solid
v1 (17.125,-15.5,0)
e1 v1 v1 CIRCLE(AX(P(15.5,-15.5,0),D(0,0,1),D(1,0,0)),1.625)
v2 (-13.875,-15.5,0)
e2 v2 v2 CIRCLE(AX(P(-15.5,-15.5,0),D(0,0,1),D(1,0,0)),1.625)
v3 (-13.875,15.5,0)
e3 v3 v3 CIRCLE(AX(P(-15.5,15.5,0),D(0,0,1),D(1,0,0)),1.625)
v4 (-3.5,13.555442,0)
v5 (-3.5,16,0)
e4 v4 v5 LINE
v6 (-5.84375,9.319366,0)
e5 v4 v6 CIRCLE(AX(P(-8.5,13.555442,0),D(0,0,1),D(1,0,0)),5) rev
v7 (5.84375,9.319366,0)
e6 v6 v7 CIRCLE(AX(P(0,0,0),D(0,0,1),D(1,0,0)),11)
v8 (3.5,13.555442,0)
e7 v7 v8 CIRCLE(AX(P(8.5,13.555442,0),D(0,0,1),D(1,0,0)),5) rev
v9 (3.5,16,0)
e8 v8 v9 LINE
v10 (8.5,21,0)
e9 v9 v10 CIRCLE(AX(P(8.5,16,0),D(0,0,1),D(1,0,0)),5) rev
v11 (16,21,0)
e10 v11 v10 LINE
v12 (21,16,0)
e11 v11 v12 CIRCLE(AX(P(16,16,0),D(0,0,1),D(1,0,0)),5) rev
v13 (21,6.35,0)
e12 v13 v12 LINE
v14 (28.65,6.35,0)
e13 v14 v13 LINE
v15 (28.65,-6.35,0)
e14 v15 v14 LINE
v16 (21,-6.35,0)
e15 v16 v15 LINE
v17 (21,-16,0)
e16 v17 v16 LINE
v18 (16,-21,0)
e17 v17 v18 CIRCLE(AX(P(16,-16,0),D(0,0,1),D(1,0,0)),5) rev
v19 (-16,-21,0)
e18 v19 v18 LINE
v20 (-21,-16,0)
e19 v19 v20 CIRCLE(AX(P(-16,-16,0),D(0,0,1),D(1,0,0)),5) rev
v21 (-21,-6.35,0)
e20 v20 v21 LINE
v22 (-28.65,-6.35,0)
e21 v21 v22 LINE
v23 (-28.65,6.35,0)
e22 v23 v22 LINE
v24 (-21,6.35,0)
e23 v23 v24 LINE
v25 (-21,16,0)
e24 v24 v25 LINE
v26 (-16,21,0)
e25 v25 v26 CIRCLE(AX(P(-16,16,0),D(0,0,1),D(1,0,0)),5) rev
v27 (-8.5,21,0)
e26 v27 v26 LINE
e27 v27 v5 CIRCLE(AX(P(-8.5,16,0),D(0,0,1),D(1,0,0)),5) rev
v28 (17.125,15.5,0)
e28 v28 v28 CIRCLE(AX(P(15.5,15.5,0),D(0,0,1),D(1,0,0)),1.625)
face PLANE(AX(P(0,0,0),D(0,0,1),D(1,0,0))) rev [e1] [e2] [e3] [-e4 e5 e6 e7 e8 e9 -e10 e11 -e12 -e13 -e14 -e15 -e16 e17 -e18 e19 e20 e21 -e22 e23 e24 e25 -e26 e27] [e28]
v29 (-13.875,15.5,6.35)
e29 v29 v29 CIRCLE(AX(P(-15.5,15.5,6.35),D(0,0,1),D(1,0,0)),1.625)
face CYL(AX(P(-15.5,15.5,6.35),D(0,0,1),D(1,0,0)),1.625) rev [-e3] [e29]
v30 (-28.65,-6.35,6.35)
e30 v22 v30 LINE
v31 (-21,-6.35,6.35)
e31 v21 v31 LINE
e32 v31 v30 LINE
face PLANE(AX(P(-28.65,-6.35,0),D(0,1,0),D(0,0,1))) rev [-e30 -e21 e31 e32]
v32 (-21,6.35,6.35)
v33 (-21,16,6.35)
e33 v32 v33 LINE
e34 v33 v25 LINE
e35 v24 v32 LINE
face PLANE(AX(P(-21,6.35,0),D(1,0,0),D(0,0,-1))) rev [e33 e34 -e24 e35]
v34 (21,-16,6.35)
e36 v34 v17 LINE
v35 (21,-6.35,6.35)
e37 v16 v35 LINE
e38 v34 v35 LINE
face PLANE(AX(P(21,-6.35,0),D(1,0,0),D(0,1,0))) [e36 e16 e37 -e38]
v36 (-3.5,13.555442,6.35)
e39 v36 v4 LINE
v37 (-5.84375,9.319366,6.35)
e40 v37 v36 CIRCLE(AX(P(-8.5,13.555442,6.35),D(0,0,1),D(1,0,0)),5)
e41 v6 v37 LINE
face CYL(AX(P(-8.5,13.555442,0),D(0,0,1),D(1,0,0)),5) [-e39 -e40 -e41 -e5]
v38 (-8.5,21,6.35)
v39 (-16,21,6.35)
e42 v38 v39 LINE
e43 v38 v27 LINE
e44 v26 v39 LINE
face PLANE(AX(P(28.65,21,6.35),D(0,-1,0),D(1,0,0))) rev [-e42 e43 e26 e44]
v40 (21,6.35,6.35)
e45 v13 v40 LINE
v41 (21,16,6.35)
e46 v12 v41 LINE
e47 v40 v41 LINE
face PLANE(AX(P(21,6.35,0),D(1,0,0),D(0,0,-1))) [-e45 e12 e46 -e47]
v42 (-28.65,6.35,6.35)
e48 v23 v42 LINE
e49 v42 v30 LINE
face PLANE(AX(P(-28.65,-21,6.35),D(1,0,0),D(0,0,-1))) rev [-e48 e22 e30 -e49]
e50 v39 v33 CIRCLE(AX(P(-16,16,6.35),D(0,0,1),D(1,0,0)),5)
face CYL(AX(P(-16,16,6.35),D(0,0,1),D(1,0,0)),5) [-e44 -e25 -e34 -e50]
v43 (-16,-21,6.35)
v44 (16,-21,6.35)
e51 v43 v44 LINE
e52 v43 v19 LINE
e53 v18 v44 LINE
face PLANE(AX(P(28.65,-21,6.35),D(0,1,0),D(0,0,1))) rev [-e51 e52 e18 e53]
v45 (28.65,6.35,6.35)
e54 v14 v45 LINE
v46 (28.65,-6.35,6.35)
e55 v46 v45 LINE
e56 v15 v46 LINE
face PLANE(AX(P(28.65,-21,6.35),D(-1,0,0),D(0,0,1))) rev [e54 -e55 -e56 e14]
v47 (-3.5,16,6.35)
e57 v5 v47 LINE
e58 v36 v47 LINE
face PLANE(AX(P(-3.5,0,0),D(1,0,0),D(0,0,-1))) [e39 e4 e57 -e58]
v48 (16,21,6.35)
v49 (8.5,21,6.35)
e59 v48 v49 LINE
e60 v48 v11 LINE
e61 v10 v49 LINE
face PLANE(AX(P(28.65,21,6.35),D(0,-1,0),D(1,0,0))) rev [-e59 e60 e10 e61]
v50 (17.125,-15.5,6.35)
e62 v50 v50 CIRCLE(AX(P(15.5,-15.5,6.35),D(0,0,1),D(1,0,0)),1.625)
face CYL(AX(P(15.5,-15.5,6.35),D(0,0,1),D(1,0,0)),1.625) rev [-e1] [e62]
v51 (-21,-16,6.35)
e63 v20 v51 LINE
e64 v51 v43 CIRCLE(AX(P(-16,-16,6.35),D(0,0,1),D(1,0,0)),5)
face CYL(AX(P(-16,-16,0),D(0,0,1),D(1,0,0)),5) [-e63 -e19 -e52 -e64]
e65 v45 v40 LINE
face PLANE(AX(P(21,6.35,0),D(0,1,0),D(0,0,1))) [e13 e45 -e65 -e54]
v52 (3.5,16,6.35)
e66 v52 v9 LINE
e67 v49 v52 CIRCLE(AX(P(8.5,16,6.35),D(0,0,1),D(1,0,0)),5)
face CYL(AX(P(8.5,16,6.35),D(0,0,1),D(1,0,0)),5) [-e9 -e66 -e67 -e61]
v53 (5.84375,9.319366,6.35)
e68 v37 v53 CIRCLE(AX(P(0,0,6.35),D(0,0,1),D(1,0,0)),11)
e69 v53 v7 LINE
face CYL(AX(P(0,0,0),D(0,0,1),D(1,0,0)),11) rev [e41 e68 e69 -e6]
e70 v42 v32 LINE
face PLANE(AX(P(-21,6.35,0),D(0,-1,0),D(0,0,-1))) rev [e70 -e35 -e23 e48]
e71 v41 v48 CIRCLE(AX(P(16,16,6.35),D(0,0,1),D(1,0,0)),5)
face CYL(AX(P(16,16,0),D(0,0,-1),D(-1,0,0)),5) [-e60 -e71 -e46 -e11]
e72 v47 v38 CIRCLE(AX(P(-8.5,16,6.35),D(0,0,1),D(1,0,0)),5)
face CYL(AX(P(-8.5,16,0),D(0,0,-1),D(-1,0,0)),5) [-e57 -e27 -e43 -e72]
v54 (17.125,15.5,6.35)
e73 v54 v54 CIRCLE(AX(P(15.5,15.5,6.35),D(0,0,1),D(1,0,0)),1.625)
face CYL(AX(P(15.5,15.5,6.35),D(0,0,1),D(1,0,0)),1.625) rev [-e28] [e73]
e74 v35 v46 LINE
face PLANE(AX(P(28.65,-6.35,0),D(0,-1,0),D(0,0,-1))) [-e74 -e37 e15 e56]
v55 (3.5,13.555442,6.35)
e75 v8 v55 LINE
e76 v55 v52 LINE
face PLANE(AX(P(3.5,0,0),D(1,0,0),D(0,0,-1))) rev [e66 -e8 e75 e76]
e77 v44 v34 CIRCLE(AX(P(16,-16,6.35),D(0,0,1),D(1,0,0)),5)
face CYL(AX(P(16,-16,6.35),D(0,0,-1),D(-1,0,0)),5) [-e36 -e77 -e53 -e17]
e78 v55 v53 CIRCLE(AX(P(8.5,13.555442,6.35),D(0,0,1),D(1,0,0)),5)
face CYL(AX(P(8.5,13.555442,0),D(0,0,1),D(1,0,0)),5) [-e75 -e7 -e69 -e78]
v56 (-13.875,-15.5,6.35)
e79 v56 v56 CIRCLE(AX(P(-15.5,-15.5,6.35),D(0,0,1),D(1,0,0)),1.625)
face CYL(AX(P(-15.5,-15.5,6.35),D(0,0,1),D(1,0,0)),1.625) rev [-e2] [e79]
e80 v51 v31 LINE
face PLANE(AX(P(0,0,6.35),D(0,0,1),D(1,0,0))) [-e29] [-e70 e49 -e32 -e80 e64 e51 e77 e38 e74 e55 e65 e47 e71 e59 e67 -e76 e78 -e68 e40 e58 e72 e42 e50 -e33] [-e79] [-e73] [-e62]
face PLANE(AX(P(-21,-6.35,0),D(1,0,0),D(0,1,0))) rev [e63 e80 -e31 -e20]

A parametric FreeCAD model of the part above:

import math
import FreeCAD as App
import Part
import Sketcher
from FreeCAD import Vector
Q = App.Units.Quantity


def edges_at(feature, points):
    """Names of the edges that pass closest to the given points."""
    edges = feature.Shape.Edges
    near = lambda p: min(range(len(edges)), key=lambda i: edges[i].distToShape(Part.Vertex(*p))[0])
    return sorted({f"Edge{near(p) + 1}" for p in points})


def add_polygon(sketch, points):
    """Adds a closed chain of lines whose ends are joined by coincident constraints."""
    first, n = sketch.GeometryCount, len(points)
    for a, b in zip(points, points[1:] + points[:1]):
        sketch.addGeometry(Part.LineSegment(App.Vector(*a, 0), App.Vector(*b, 0)), False)
    for i in range(n):
        sketch.addConstraint(Sketcher.Constraint("Coincident", first + i, 2, first + (i + 1) % n, 1))

doc = App.newDocument("Part")
body = doc.addObject("PartDesign::Body", "Body")

sketch1 = body.newObject("Sketcher::SketchObject", "Sketch")
sketch1.AttachmentSupport = (doc.getObject("XY_Plane"), [""])
sketch1.MapMode = "FlatFace"
add_polygon(sketch1, [(-28.65, 21), (-28.65, -21), (28.65, -21), (28.65, 21)])
sketch1.addConstraint([
    Sketcher.Constraint("Vertical", 0),
    Sketcher.Constraint("Horizontal", 1),
    Sketcher.Constraint("Vertical", 2),
    Sketcher.Constraint("Horizontal", 3),
    Sketcher.Constraint("Symmetric", 0, 2, 2, 2, -1, 1),
    Sketcher.Constraint("DistanceY", 0, 2, 0, 1, Q("42 mm")),
    Sketcher.Constraint("DistanceX", 1, 1, 1, 2, Q("57.3 mm")),
])
pad1 = body.newObject("PartDesign::Pad", "Pad")
pad1.Profile = sketch1
pad1.Length = 6.35

sketch2 = body.newObject("Sketcher::SketchObject", "Sketch001")
sketch2.AttachmentSupport = (doc.getObject("XY_Plane"), [""])
sketch2.MapMode = "FlatFace"
sketch2.AttachmentOffset = App.Placement(Vector(0, 0, 6.35), App.Rotation())
sketch2.addGeometry([
    Part.Circle(Vector(15.5, 15.5, 0), Vector(0, 0, 1), 1.625),
    Part.Circle(Vector(15.5, -15.5, 0), Vector(0, 0, 1), 1.625),
    Part.Circle(Vector(-15.5, 15.5, 0), Vector(0, 0, 1), 1.625),
    Part.Circle(Vector(-15.5, -15.5, 0), Vector(0, 0, 1), 1.625),
], False)
sketch2.addConstraint([
    Sketcher.Constraint("Equal", 0, 1),
    Sketcher.Constraint("Equal", 1, 2),
    Sketcher.Constraint("Equal", 2, 3),
    Sketcher.Constraint("Symmetric", 1, 3, 2, 3, -1, 1),
    Sketcher.Constraint("Symmetric", 0, 3, 3, 3, -1, 1),
    Sketcher.Constraint("Symmetric", 0, 3, 2, 3, -2),
    Sketcher.Constraint("Diameter", 0, Q("3.25 mm")),
    Sketcher.Constraint("DistanceY", 1, 3, 0, 3, Q("31 mm")),
    Sketcher.Constraint("DistanceX", 2, 3, 0, 3, Q("31 mm")),
])
doc.recompute()
hole = body.newObject("PartDesign::Hole", "Hole")
hole.Profile = sketch2
hole.ThreadType = "None"
hole.Diameter = 3.25
hole.DepthType = "ThroughAll"

sketch3 = body.newObject("Sketcher::SketchObject", "Sketch002")
sketch3.AttachmentSupport = (doc.getObject("XY_Plane"), [""])
sketch3.MapMode = "FlatFace"
sketch3.AttachmentOffset = App.Placement(Vector(0, 0, 6.35), App.Rotation())
sketch3.addGeometry([
    Part.ArcOfCircle(Part.Circle(Vector(0, 0, 0), Vector(0, 0, 1), 11), math.radians(0), math.radians(71.446995)),
    Part.LineSegment(Vector(3.5, 10.428327, 0), Vector(3.5, 21, 0)),
    Part.LineSegment(Vector(3.5, 21, 0), Vector(-3.5, 21, 0)),
    Part.LineSegment(Vector(-3.5, 21, 0), Vector(-3.5, 10.428327, 0)),
    Part.ArcOfCircle(Part.Circle(Vector(0, 0, 0), Vector(0, 0, 1), 11), math.radians(108.553005), math.radians(360)),
], False)
sketch3.addConstraint([
    Sketcher.Constraint("Coincident", 0, 2, 1, 1),
    Sketcher.Constraint("Coincident", 1, 2, 2, 1),
    Sketcher.Constraint("Coincident", 2, 2, 3, 1),
    Sketcher.Constraint("Coincident", 3, 2, 4, 1),
    Sketcher.Constraint("Tangent", 4, 2, 0, 1),
    Sketcher.Constraint("Vertical", 1),
    Sketcher.Constraint("Horizontal", 2),
    Sketcher.Constraint("Vertical", 3),
    Sketcher.Constraint("Coincident", 0, 3, -1, 1),
    Sketcher.Constraint("Equal", 0, 4),
    Sketcher.Constraint("PointOnObject", 4, 2, -1),
    Sketcher.Constraint("Horizontal", 0, 2, 3, 2),
    Sketcher.Constraint("Radius", 0, Q("11 mm")),
    Sketcher.Constraint("DistanceX", 2, 2, 2, 1, Q("7 mm")),
    Sketcher.Constraint("DistanceY", -1, 1, 1, 2, Q("21 mm")),
])
pocket1 = body.newObject("PartDesign::Pocket", "Pocket")
pocket1.Profile = sketch3
pocket1.Type = "ThroughAll"

sketch4 = body.newObject("Sketcher::SketchObject", "Sketch003")
sketch4.AttachmentSupport = (doc.getObject("XY_Plane"), [""])
sketch4.MapMode = "FlatFace"
sketch4.AttachmentOffset = App.Placement(Vector(0, 0, 6.35), App.Rotation())
add_polygon(sketch4, [(-28.65, 21), (-28.65, 6.35), (-21, 6.35), (-21, 21)])
add_polygon(sketch4, [(-28.65, -6.35), (-28.65, -21), (-21, -21), (-21, -6.35)])
sketch4.addConstraint([
    Sketcher.Constraint("Vertical", 0),
    Sketcher.Constraint("Horizontal", 1),
    Sketcher.Constraint("Vertical", 2),
    Sketcher.Constraint("Horizontal", 3),
    Sketcher.Constraint("Vertical", 4),
    Sketcher.Constraint("Horizontal", 5),
    Sketcher.Constraint("Vertical", 6),
    Sketcher.Constraint("Horizontal", 7),
    Sketcher.Constraint("Symmetric", 3, 2, 4, 2, -1),
    Sketcher.Constraint("Symmetric", 1, 2, 6, 2, -1),
    Sketcher.Constraint("DistanceX", 1, 2, -1, 1, Q("21 mm")),
    Sketcher.Constraint("DistanceY", -1, 1, 2, 2, Q("21 mm")),
    Sketcher.Constraint("DistanceX", 1, 1, 1, 2, Q("7.65 mm")),
    Sketcher.Constraint("DistanceY", 0, 2, 0, 1, Q("14.65 mm")),
])
pocket2 = body.newObject("PartDesign::Pocket", "Pocket001")
pocket2.Profile = sketch4
pocket2.Type = "ThroughAll"
doc.recompute()

mirrored = body.newObject("PartDesign::Mirrored", "Mirrored")
mirrored.Originals = [pocket2]
mirrored.MirrorPlane = (doc.getObject("YZ_Plane"), [""])
body.Tip = mirrored
doc.recompute()

fillet = body.newObject("PartDesign::Fillet", "Fillet")
fillet.Base = (mirrored, edges_at(mirrored, [
    (3.5, 10.428, 3.175),
    (-3.5, 10.428, 3.175),
    (-3.5, 21, 3.175),
    (3.5, 21, 3.175),
    (-21, 21, 3.175),
    (-21, -21, 3.175),
    (21, 21, 3.175),
    (21, -21, 3.175),
]))
fillet.Radius = 5

doc.recompute()
